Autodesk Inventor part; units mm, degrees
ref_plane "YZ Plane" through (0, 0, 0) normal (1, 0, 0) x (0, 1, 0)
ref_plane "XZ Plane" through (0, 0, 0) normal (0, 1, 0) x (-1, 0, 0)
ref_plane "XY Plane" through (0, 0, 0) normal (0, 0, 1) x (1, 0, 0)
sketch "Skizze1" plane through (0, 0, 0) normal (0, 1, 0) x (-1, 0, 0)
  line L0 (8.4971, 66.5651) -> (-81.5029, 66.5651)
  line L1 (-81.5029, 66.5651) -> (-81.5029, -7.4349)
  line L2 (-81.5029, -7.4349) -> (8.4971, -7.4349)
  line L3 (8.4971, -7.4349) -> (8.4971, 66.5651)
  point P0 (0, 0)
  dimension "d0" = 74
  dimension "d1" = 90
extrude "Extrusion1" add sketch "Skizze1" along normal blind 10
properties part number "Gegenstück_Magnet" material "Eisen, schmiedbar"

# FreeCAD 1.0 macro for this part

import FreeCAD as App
import Part
import Sketcher
Q = App.Units.Quantity

doc = App.newDocument("Part")
body = doc.addObject("PartDesign::Body", "Body")

sketch1 = body.newObject("Sketcher::SketchObject", "Sketch")
sketch1.AttachmentSupport = (doc.getObject("XZ_Plane"), [""])
sketch1.MapMode = "FlatFace"
sketch1.addGeometry([
    Part.LineSegment(App.Vector(-8.4971, -7.4349, 0), App.Vector(-8.4971, 66.5651, 0)),
    Part.LineSegment(App.Vector(-8.4971, 66.5651, 0), App.Vector(81.5029, 66.5651, 0)),
    Part.LineSegment(App.Vector(81.5029, 66.5651, 0), App.Vector(81.5029, -7.4349, 0)),
    Part.LineSegment(App.Vector(81.5029, -7.4349, 0), App.Vector(-8.4971, -7.4349, 0)),
], False)
sketch1.addConstraint([
    Sketcher.Constraint("Coincident", 0, 2, 1, 1),
    Sketcher.Constraint("Coincident", 1, 2, 2, 1),
    Sketcher.Constraint("Coincident", 2, 2, 3, 1),
    Sketcher.Constraint("Coincident", 3, 2, 0, 1),
    Sketcher.Constraint("Vertical", 0),
    Sketcher.Constraint("Horizontal", 1),
    Sketcher.Constraint("Vertical", 2),
    Sketcher.Constraint("Horizontal", 3),
    Sketcher.Constraint("DistanceX", 1, 1, 1, 2, Q("90 mm")),
    Sketcher.Constraint("DistanceY", 0, 1, 0, 2, Q("74 mm")),
    Sketcher.Constraint("DistanceX", 0, 2, -1, 1, Q("8.497 mm")),
    Sketcher.Constraint("DistanceY", -1, 1, 0, 2, Q("66.565 mm")),
])
pad1 = body.newObject("PartDesign::Pad", "Pad")
pad1.Profile = sketch1
pad1.Length = 10
pad1.Reversed = True

doc.recompute()
